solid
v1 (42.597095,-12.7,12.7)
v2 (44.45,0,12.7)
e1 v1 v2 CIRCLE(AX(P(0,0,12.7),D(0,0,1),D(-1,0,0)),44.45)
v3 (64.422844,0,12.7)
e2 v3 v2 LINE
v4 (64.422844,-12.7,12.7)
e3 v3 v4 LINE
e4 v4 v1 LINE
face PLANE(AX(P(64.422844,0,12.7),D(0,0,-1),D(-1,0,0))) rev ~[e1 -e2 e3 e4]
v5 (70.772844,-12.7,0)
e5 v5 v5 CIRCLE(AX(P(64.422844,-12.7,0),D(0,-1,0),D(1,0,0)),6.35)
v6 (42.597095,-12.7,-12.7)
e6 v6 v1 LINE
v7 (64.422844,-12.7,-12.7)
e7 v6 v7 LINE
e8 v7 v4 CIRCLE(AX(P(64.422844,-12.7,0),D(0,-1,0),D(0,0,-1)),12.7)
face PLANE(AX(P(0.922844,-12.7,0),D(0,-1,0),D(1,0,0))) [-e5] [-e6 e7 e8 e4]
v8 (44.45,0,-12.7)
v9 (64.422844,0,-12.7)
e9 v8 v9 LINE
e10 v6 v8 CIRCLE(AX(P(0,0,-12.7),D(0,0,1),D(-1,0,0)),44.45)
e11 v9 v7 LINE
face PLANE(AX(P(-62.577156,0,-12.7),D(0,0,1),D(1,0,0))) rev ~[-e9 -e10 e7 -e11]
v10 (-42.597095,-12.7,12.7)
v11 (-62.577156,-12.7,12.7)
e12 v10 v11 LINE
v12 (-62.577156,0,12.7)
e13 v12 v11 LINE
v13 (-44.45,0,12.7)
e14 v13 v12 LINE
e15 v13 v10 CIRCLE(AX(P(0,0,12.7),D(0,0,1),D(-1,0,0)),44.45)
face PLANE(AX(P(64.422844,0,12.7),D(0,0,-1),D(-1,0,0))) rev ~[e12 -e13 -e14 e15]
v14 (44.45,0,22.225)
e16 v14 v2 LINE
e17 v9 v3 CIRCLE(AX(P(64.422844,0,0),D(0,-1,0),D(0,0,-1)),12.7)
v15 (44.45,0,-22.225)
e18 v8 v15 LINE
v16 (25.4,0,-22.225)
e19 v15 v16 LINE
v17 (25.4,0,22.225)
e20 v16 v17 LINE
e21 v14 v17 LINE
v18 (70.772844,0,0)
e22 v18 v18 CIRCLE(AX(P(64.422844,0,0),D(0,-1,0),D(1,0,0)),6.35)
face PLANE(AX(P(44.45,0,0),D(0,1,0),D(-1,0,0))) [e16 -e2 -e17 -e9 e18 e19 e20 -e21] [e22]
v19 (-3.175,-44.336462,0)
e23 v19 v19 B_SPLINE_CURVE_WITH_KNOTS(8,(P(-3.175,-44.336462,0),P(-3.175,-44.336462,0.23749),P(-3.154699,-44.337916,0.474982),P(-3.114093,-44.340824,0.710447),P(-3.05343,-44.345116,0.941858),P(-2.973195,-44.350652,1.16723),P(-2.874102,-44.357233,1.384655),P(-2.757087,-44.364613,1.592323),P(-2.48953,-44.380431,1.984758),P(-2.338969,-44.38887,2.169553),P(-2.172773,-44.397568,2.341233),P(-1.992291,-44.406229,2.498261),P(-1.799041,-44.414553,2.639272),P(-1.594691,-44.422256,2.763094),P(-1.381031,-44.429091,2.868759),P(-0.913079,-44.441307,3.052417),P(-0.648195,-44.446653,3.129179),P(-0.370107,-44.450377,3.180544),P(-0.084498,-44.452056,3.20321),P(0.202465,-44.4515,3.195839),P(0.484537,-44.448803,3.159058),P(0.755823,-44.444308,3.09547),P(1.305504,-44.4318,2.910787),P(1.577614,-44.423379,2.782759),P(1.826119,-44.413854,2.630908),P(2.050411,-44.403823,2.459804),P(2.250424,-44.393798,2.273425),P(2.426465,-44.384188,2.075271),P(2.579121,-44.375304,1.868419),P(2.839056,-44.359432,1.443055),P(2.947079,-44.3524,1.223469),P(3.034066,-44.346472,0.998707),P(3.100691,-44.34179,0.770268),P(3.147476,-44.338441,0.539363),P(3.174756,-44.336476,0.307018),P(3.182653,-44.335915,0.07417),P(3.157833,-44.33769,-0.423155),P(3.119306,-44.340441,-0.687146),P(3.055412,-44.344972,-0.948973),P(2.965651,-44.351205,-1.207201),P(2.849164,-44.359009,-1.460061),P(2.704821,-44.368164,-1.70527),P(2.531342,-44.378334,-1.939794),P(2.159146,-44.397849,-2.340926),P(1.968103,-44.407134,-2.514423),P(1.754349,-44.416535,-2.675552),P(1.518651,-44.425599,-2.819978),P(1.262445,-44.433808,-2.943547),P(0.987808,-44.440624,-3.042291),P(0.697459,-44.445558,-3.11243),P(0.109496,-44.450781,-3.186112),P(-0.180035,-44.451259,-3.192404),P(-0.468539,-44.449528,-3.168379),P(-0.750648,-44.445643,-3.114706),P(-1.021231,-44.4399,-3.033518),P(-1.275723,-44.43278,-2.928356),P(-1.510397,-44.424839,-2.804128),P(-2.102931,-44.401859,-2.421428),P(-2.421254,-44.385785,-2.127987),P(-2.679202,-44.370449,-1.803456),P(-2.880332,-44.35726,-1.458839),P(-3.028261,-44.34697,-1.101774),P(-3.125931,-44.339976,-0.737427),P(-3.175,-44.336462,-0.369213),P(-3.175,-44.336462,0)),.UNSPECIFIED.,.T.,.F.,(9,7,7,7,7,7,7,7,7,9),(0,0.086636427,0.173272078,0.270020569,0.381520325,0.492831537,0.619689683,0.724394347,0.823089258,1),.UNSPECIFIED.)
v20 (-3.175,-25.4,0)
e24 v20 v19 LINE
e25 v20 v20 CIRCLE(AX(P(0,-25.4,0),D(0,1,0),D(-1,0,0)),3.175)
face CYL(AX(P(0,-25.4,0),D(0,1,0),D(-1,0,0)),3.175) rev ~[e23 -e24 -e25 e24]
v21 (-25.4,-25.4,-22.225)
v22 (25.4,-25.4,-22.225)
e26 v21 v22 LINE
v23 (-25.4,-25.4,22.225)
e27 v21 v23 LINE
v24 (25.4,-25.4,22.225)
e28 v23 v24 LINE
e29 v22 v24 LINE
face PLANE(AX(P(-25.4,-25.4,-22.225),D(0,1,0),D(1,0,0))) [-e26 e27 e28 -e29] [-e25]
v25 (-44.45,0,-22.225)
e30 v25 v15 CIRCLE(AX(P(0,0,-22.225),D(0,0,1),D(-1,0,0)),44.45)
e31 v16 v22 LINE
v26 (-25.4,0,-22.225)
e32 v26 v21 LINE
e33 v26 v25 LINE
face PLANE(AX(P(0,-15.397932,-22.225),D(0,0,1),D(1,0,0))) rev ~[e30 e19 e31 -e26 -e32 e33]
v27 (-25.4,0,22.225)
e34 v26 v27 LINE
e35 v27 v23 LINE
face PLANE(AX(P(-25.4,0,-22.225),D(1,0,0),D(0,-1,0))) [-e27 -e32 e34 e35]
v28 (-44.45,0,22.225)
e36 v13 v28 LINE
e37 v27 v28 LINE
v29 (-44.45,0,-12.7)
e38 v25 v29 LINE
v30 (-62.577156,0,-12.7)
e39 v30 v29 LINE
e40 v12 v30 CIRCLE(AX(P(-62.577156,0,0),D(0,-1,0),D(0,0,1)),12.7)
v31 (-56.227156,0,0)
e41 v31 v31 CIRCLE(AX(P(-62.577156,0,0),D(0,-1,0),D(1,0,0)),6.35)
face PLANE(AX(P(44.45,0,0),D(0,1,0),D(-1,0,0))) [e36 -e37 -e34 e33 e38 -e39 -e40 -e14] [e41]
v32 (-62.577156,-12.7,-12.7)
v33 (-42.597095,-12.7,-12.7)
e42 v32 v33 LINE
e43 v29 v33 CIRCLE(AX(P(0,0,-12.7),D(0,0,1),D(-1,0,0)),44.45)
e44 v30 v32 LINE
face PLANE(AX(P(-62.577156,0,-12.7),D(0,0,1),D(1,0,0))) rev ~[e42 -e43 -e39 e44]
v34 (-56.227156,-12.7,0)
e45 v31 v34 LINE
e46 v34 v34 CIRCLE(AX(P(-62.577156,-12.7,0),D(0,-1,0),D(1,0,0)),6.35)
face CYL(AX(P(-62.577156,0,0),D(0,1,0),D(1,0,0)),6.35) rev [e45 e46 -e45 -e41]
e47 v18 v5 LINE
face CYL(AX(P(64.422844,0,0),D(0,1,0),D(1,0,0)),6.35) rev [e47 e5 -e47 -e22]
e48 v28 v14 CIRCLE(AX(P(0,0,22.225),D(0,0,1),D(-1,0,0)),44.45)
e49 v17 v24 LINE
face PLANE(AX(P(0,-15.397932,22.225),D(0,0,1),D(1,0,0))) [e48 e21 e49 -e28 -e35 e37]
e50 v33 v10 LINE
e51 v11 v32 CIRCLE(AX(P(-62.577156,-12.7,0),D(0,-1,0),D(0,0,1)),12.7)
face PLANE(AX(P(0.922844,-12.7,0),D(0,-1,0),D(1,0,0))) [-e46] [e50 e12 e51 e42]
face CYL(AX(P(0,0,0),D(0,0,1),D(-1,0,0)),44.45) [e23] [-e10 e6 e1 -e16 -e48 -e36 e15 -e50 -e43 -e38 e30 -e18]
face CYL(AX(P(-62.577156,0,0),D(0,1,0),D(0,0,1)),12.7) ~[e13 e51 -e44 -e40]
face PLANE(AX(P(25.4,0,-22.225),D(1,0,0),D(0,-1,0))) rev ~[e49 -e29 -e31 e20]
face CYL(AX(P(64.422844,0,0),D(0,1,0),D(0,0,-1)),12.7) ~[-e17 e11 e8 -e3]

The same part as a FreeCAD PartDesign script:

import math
import FreeCAD as App
import Part
import Sketcher
Q = App.Units.Quantity

doc = App.newDocument("Part")
body = doc.addObject("PartDesign::Body", "Body")

sketch1 = body.newObject("Sketcher::SketchObject", "Sketch")
sketch1.AttachmentSupport = (doc.getObject("XZ_Plane"), [""])
sketch1.MapMode = "FlatFace"
sketch1.addGeometry(Part.LineSegment(App.Vector(64, 13, 0), App.Vector(-63, 13, 0)), False)
sketch1.addGeometry(Part.ArcOfCircle(Part.Circle(App.Vector(-63, 0, 0), App.Vector(0, 0, 1), 13), math.radians(90), math.radians(270)), False)
sketch1.addGeometry(Part.LineSegment(App.Vector(-63, -13, 0), App.Vector(64, -13, 0)), False)
sketch1.addGeometry(Part.ArcOfCircle(Part.Circle(App.Vector(64, 0, 0), App.Vector(0, 0, 1), 13), math.radians(-90), math.radians(90)), False)
sketch1.addGeometry(Part.Circle(App.Vector(-63, 0, 0), App.Vector(0, 0, 1), 6), False)
sketch1.addGeometry(Part.Circle(App.Vector(64, 0, 0), App.Vector(0, 0, 1), 6), False)
sketch1.addConstraint(Sketcher.Constraint("Tangent", 0, 2, 1, 1))
sketch1.addConstraint(Sketcher.Constraint("Tangent", 1, 2, 2, 1))
sketch1.addConstraint(Sketcher.Constraint("Tangent", 2, 2, 3, 1))
sketch1.addConstraint(Sketcher.Constraint("Tangent", 3, 2, 0, 1))
sketch1.addConstraint(Sketcher.Constraint("Horizontal", 0))
sketch1.addConstraint(Sketcher.Constraint("Horizontal", 2))
sketch1.addConstraint(Sketcher.Constraint("Coincident", 4, 3, 1, 3))
sketch1.addConstraint(Sketcher.Constraint("Coincident", 5, 3, 3, 3))
sketch1.addConstraint(Sketcher.Constraint("Equal", 4, 5))
sketch1.addConstraint(Sketcher.Constraint("PointOnObject", 1, 3, -1))
sketch1.addConstraint(Sketcher.Constraint("Diameter", 4, Q("0.5 in")))
sketch1.addConstraint(Sketcher.Constraint("Radius", 1, Q("0.5 in")))
sketch1.addConstraint(Sketcher.Constraint("DistanceX", 0, 2, 0, 1, Q("5 in")))
sketch1.addConstraint(Sketcher.Constraint("DistanceX", 1, 3, -1, 1, Q("62.577156 mm")))
pad1 = body.newObject("PartDesign::Pad", "Pad")
pad1.Profile = sketch1
pad1.Length = Q("0.5 in")

sketch2 = body.newObject("Sketcher::SketchObject", "Sketch001")
sketch2.AttachmentSupport = (doc.getObject("XY_Plane"), [""])
sketch2.MapMode = "FlatFace"
sketch2.addGeometry(Part.LineSegment(App.Vector(44, 0, 0), App.Vector(-44, 0, 0)), False)
sketch2.addGeometry(Part.ArcOfCircle(Part.Circle(App.Vector(0, 0, 0), App.Vector(0, 0, 1), 44), math.radians(180), math.radians(360)), False)
sketch2.addConstraint(Sketcher.Constraint("Coincident", 0, 1, 1, 2))
sketch2.addConstraint(Sketcher.Constraint("Coincident", 1, 1, 0, 2))
sketch2.addConstraint(Sketcher.Constraint("Horizontal", 0))
sketch2.addConstraint(Sketcher.Constraint("Coincident", 1, 3, -1, 1))
sketch2.addConstraint(Sketcher.Constraint("PointOnObject", 0, 1, -1))
sketch2.addConstraint(Sketcher.Constraint("Radius", 1, Q("1.75 in")))
pad2 = body.newObject("PartDesign::Pad", "Pad001")
pad2.Profile = sketch2
pad2.Length = Q("1.75 in")
pad2.Midplane = True

sketch3 = body.newObject("Sketcher::SketchObject", "Sketch002")
sketch3.AttachmentSupport = (doc.getObject("XY_Plane"), [""])
sketch3.MapMode = "FlatFace"
sketch3.AttachmentOffset = App.Placement(App.Vector(0, 0, -0.875 * 25.4), App.Rotation())
sketch3.addGeometry(Part.LineSegment(App.Vector(-25, -25, 0), App.Vector(-25, 0, 0)), False)
sketch3.addGeometry(Part.LineSegment(App.Vector(-25, 0, 0), App.Vector(25, 0, 0)), False)
sketch3.addGeometry(Part.LineSegment(App.Vector(25, 0, 0), App.Vector(25, -25, 0)), False)
sketch3.addGeometry(Part.LineSegment(App.Vector(25, -25, 0), App.Vector(-25, -25, 0)), False)
sketch3.addConstraint(Sketcher.Constraint("Coincident", 0, 2, 1, 1))
sketch3.addConstraint(Sketcher.Constraint("Coincident", 1, 2, 2, 1))
sketch3.addConstraint(Sketcher.Constraint("Coincident", 2, 2, 3, 1))
sketch3.addConstraint(Sketcher.Constraint("Coincident", 3, 2, 0, 1))
sketch3.addConstraint(Sketcher.Constraint("Vertical", 0))
sketch3.addConstraint(Sketcher.Constraint("Horizontal", 1))
sketch3.addConstraint(Sketcher.Constraint("Vertical", 2))
sketch3.addConstraint(Sketcher.Constraint("Horizontal", 3))
sketch3.addConstraint(Sketcher.Constraint("Symmetric", 0, 2, 1, 2, -1, 1))
sketch3.addConstraint(Sketcher.Constraint("DistanceX", 1, 1, 1, 2, Q("2 in")))
sketch3.addConstraint(Sketcher.Constraint("DistanceY", 0, 1, 0, 2, Q("1 in")))
pocket1 = body.newObject("PartDesign::Pocket", "Pocket")
pocket1.Profile = sketch3
pocket1.Length = Q("1.75 in")
pocket1.Reversed = True

sketch4 = body.newObject("Sketcher::SketchObject", "Sketch003")
sketch4.AttachmentSupport = (doc.getObject("XZ_Plane"), [""])
sketch4.MapMode = "FlatFace"
sketch4.AttachmentOffset = App.Placement(App.Vector(0, 0, 1 * 25.4), App.Rotation())
sketch4.addGeometry(Part.Circle(App.Vector(0, 0, 0), App.Vector(0, 0, 1), 3.2), False)
sketch4.addConstraint(Sketcher.Constraint("Coincident", 0, 3, -1, 1))
sketch4.addConstraint(Sketcher.Constraint("Diameter", 0, Q("0.25 in")))
pocket2 = body.newObject("PartDesign::Pocket", "Pocket001")
pocket2.Profile = sketch4
pocket2.Length = Q("1 in")
pocket2.Reversed = True

doc.recompute()
